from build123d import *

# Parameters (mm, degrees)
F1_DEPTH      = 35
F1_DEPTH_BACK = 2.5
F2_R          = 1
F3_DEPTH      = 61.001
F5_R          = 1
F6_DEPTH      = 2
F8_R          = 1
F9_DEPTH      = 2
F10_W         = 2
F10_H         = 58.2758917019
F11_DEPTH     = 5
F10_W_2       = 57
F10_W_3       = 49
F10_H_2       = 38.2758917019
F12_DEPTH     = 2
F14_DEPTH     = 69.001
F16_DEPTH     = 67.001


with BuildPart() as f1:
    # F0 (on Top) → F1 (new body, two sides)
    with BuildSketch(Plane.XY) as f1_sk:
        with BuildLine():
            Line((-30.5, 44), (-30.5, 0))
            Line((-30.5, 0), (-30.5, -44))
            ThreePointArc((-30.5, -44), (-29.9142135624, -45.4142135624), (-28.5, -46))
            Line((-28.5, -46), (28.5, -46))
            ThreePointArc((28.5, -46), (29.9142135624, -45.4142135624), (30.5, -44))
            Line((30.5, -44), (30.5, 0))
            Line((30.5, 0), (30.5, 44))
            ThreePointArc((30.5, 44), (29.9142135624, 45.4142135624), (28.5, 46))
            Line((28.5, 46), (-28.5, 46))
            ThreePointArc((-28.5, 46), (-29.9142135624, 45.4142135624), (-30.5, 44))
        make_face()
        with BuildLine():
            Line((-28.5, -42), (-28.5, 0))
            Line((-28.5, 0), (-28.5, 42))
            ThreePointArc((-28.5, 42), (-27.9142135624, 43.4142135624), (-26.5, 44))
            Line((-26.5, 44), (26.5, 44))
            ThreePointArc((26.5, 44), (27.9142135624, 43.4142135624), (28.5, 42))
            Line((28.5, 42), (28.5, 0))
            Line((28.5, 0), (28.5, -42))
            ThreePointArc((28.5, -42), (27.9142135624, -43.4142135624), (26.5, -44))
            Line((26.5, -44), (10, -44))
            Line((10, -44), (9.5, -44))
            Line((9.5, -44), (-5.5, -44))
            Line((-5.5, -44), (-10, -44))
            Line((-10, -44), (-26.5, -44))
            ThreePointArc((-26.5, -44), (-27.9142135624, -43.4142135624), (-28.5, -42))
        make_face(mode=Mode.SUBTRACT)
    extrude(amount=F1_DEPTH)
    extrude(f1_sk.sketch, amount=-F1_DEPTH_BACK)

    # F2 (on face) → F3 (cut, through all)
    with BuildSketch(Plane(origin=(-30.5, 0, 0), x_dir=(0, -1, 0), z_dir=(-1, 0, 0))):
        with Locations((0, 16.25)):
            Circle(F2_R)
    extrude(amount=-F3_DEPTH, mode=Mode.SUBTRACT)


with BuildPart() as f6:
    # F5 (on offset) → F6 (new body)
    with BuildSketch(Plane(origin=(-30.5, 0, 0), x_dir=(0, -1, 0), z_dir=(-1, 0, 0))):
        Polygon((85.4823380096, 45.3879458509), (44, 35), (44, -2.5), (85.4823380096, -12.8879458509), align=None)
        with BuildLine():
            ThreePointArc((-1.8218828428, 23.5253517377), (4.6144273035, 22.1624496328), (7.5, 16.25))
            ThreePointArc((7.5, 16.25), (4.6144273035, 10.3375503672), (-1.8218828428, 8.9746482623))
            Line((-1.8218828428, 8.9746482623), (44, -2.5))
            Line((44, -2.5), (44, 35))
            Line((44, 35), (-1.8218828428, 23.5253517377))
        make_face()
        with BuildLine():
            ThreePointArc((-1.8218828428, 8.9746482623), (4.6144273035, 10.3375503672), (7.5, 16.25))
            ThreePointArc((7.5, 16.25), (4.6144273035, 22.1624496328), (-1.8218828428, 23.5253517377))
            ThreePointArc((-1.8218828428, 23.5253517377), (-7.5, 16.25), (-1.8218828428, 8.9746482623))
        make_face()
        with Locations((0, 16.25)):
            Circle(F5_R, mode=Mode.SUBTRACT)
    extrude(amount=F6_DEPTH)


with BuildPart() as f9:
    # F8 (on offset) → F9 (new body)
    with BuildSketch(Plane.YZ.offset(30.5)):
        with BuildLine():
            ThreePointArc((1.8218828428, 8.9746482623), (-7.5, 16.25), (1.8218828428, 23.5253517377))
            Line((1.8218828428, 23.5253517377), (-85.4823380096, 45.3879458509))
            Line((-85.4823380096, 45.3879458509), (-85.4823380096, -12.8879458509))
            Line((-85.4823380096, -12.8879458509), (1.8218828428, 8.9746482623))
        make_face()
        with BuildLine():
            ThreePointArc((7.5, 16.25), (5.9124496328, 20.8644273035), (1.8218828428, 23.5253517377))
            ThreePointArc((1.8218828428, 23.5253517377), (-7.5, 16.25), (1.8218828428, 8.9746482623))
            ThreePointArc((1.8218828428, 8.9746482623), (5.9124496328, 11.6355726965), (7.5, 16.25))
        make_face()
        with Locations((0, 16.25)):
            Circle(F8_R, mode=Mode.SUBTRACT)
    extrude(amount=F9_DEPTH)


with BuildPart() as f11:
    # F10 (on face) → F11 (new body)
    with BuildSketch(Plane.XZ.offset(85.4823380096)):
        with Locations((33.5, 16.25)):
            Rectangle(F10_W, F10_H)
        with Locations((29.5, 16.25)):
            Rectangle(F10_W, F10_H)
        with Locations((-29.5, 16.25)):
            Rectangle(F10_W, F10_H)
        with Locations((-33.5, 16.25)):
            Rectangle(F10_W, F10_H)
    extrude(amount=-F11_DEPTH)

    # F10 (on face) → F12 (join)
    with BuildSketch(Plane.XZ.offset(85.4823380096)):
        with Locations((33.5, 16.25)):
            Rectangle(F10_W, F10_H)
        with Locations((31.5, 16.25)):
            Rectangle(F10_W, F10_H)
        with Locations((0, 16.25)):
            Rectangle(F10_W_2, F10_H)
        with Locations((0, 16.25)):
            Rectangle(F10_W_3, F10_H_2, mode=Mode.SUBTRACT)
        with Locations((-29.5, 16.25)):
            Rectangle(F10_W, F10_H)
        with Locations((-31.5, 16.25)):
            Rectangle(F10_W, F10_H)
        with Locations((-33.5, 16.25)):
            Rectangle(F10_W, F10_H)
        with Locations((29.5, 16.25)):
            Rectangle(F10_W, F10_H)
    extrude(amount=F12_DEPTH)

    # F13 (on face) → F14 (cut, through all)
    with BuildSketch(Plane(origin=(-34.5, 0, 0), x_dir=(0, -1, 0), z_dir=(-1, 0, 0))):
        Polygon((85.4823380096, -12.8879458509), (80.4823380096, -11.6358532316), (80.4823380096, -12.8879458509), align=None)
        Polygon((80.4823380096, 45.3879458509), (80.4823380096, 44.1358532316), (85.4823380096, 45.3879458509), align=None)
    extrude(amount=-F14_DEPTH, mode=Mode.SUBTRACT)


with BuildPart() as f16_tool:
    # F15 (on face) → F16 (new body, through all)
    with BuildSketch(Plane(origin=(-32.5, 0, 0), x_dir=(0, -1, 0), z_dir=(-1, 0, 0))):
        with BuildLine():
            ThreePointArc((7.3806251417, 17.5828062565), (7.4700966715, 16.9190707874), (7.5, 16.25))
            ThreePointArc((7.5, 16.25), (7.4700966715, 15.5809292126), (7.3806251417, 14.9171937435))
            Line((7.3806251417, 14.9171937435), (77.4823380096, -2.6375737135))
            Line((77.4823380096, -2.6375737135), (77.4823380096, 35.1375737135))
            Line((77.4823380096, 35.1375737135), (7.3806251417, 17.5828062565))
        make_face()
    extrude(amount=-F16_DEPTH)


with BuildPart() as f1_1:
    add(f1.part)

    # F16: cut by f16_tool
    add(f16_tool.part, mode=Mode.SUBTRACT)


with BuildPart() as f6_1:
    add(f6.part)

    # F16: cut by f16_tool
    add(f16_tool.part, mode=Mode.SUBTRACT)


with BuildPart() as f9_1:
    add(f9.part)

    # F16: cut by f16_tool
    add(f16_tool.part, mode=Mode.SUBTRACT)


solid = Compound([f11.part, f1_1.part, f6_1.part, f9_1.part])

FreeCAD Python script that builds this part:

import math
import FreeCAD as App
import Part
import Sketcher

V = App.Vector
Q = App.Units.Quantity

doc = App.newDocument("Part")
body = doc.addObject("PartDesign::Body", "Body")

sketch1 = body.newObject("Sketcher::SketchObject", "Sketch")
sketch1.AttachmentSupport = (doc.getObject("XY_Plane"), [""])
sketch1.MapMode = "FlatFace"
sketch1.addGeometry([
    Part.LineSegment(V(-30.5, 44, 0), V(-30.5, -44, 0)),
    Part.ArcOfCircle(Part.Circle(V(-28.5, -44, 0), V(0, 0, 1), 2), math.radians(180), math.radians(270)),
    Part.LineSegment(V(-28.5, -46, 0), V(28.5, -46, 0)),
    Part.ArcOfCircle(Part.Circle(V(28.5, -44, 0), V(0, 0, 1), 2), math.radians(-90), math.radians(0)),
    Part.LineSegment(V(30.5, -44, 0), V(30.5, 44, 0)),
    Part.ArcOfCircle(Part.Circle(V(28.5, 44, 0), V(0, 0, 1), 2), math.radians(0), math.radians(90)),
    Part.LineSegment(V(28.5, 46, 0), V(-28.5, 46, 0)),
    Part.ArcOfCircle(Part.Circle(V(-28.5, 44, 0), V(0, 0, 1), 2), math.radians(90), math.radians(180)),
    Part.ArcOfCircle(Part.Circle(V(-26.5, -42, 0), V(0, 0, 1), 2), math.radians(180), math.radians(270)),
    Part.LineSegment(V(-28.5, -42, 0), V(-28.5, 42, 0)),
    Part.ArcOfCircle(Part.Circle(V(-26.5, 42, 0), V(0, 0, 1), 2), math.radians(90), math.radians(180)),
    Part.LineSegment(V(-26.5, 44, 0), V(26.5, 44, 0)),
    Part.ArcOfCircle(Part.Circle(V(26.5, 42, 0), V(0, 0, 1), 2), math.radians(0), math.radians(90)),
    Part.LineSegment(V(28.5, 42, 0), V(28.5, -42, 0)),
    Part.ArcOfCircle(Part.Circle(V(26.5, -42, 0), V(0, 0, 1), 2), math.radians(-90), math.radians(0)),
    Part.LineSegment(V(26.5, -44, 0), V(-26.5, -44, 0)),
], False)
sketch1.addConstraint([
    Sketcher.Constraint("Tangent", 0, 2, 1, 1),
    Sketcher.Constraint("Tangent", 1, 2, 2, 1),
    Sketcher.Constraint("Tangent", 2, 2, 3, 1),
    Sketcher.Constraint("Tangent", 3, 2, 4, 1),
    Sketcher.Constraint("Tangent", 4, 2, 5, 1),
    Sketcher.Constraint("Tangent", 5, 2, 6, 1),
    Sketcher.Constraint("Tangent", 6, 2, 7, 1),
    Sketcher.Constraint("Tangent", 7, 2, 0, 1),
    Sketcher.Constraint("Tangent", 8, 1, 9, 1),
    Sketcher.Constraint("Tangent", 9, 2, 10, 2),
    Sketcher.Constraint("Tangent", 10, 1, 11, 1),
    Sketcher.Constraint("Tangent", 11, 2, 12, 2),
    Sketcher.Constraint("Tangent", 12, 1, 13, 1),
    Sketcher.Constraint("Tangent", 13, 2, 14, 2),
    Sketcher.Constraint("Tangent", 14, 1, 15, 1),
    Sketcher.Constraint("Tangent", 15, 2, 8, 2),
    Sketcher.Constraint("Vertical", 0),
    Sketcher.Constraint("Horizontal", 2),
    Sketcher.Constraint("Vertical", 4),
    Sketcher.Constraint("Horizontal", 6),
    Sketcher.Constraint("Vertical", 9),
    Sketcher.Constraint("Horizontal", 11),
    Sketcher.Constraint("Vertical", 13),
    Sketcher.Constraint("Horizontal", 15),
    Sketcher.Constraint("Equal", 1, 3),
    Sketcher.Constraint("Equal", 3, 5),
    Sketcher.Constraint("Equal", 5, 7),
    Sketcher.Constraint("Equal", 7, 8),
    Sketcher.Constraint("Equal", 8, 10),
    Sketcher.Constraint("Equal", 10, 12),
    Sketcher.Constraint("Equal", 12, 14),
    Sketcher.Constraint("Symmetric", 1, 3, 5, 3, -1, 1),
    Sketcher.Constraint("Symmetric", 8, 3, 12, 3, -1, 1),
    Sketcher.Constraint("Horizontal", 7, 2, 10, 1),
    Sketcher.Constraint("Vertical", 6, 2, 8, 1),
    Sketcher.Constraint("Radius", 1, Q("2 mm")),
    Sketcher.Constraint("DistanceX", 2, 1, 2, 2, Q("57 mm")),
    Sketcher.Constraint("DistanceY", 0, 2, 0, 1, Q("88 mm")),
])
pad1 = body.newObject("PartDesign::Pad", "Pad")
pad1.Profile = sketch1
pad1.Type = "TwoLengths"
pad1.Length = 35
pad1.Length2 = 2.5

sketch2 = body.newObject("Sketcher::SketchObject", "Sketch001")
sketch2.AttachmentSupport = (doc.getObject("YZ_Plane"), [""])
sketch2.MapMode = "FlatFace"
sketch2.AttachmentOffset = App.Placement(V(0, 0, -30.5), App.Rotation())
sketch2.addGeometry(Part.Circle(V(0, 16.2, 0), V(0, 0, 1), 1), False)
sketch2.addConstraint([
    Sketcher.Constraint("PointOnObject", 0, 3, -2),
    Sketcher.Constraint("Diameter", 0, Q("2 mm")),
    Sketcher.Constraint("DistanceY", -1, 1, 0, 3, Q("16.25 mm")),
])
pocket1 = body.newObject("PartDesign::Pocket", "Pocket")
pocket1.Profile = sketch2
pocket1.Type = "ThroughAll"
pocket1.Reversed = True
body2 = doc.addObject("PartDesign::Body", "Body001")

sketch3 = body2.newObject("Sketcher::SketchObject", "Sketch002")
sketch3.AttachmentSupport = (doc.getObject("YZ_Plane001"), [""])
sketch3.MapMode = "FlatFace"
sketch3.AttachmentOffset = App.Placement(V(0, 0, -30.5), App.Rotation())
sketch3.addGeometry([
    Part.LineSegment(V(-85.5, 45.4, 0), V(1.8, 23.5, 0)),
    Part.ArcOfCircle(Part.Circle(V(0, 16.2, 0), V(0, 0, 1), 7.5), math.radians(-76), math.radians(76)),
    Part.LineSegment(V(1.8, 9, 0), V(-85.5, -12.9, 0)),
    Part.LineSegment(V(-85.5, -12.9, 0), V(-85.5, 45.4, 0)),
    Part.Circle(V(0, 16.2, 0), V(0, 0, 1), 1),
], False)
sketch3.addConstraint([
    Sketcher.Constraint("Tangent", 0, 2, 1, 2),
    Sketcher.Constraint("Tangent", 1, 1, 2, 1),
    Sketcher.Constraint("Coincident", 2, 2, 3, 1),
    Sketcher.Constraint("Coincident", 3, 2, 0, 1),
    Sketcher.Constraint("Vertical", 3),
    Sketcher.Constraint("Coincident", 4, 3, 1, 3),
    Sketcher.Constraint("PointOnObject", 1, 3, -2),
    Sketcher.Constraint("Vertical", 0, 2, 1, 1),
    Sketcher.Constraint("Diameter", 4, Q("2 mm")),
    Sketcher.Constraint("Radius", 1, Q("7.5 mm")),
    Sketcher.Constraint("Distance", 0, Q("90 mm")),
    Sketcher.Constraint("DistanceY", -1, 1, 1, 3, Q("16.25 mm")),
    Sketcher.Constraint("DistanceY", 3, 1, 3, 2, Q("58.275892 mm")),
])
pad2 = body2.newObject("PartDesign::Pad", "Pad001")
pad2.Profile = sketch3
pad2.Length = 2
pad2.Reversed = True
body3 = doc.addObject("PartDesign::Body", "Body002")

sketch4 = body3.newObject("Sketcher::SketchObject", "Sketch003")
sketch4.AttachmentSupport = (doc.getObject("YZ_Plane002"), [""])
sketch4.MapMode = "FlatFace"
sketch4.AttachmentOffset = App.Placement(V(0, 0, 30.5), App.Rotation())
sketch4.addGeometry([
    Part.LineSegment(V(1.8, 23.5, 0), V(-85.5, 45.4, 0)),
    Part.LineSegment(V(-85.5, 45.4, 0), V(-85.5, -12.9, 0)),
    Part.LineSegment(V(-85.5, -12.9, 0), V(1.8, 9, 0)),
    Part.ArcOfCircle(Part.Circle(V(0, 16.2, 0), V(0, 0, 1), 7.5), math.radians(-76), math.radians(0)),
    Part.ArcOfCircle(Part.Circle(V(0, 16.2, 0), V(0, 0, 1), 7.5), math.radians(0), math.radians(76)),
    Part.Circle(V(0, 16.2, 0), V(0, 0, 1), 1),
], False)
sketch4.addConstraint([
    Sketcher.Constraint("Coincident", 0, 2, 1, 1),
    Sketcher.Constraint("Coincident", 1, 2, 2, 1),
    Sketcher.Constraint("Tangent", 2, 2, 3, 1),
    Sketcher.Constraint("Tangent", 3, 2, 4, 1),
    Sketcher.Constraint("Tangent", 4, 2, 0, 1),
    Sketcher.Constraint("Vertical", 1),
    Sketcher.Constraint("Coincident", 5, 3, 3, 3),
    Sketcher.Constraint("Equal", 3, 4),
    Sketcher.Constraint("PointOnObject", 3, 3, -2),
    Sketcher.Constraint("Horizontal", 5, 3, 3, 2),
    Sketcher.Constraint("Vertical", 2, 2, 4, 2),
    Sketcher.Constraint("Diameter", 5, Q("2 mm")),
    Sketcher.Constraint("Radius", 3, Q("7.5 mm")),
    Sketcher.Constraint("Distance", 0, Q("90 mm")),
    Sketcher.Constraint("DistanceY", -1, 1, 3, 3, Q("16.25 mm")),
    Sketcher.Constraint("DistanceY", 1, 2, 1, 1, Q("58.275892 mm")),
])
pad3 = body3.newObject("PartDesign::Pad", "Pad002")
pad3.Profile = sketch4
pad3.Length = 2
body4 = doc.addObject("PartDesign::Body", "Body003")
body4.AllowCompound = True

sketch5 = body4.newObject("Sketcher::SketchObject", "Sketch004")
sketch5.AttachmentSupport = (doc.getObject("XZ_Plane003"), [""])
sketch5.MapMode = "FlatFace"
sketch5.AttachmentOffset = App.Placement(V(0, 0, 85.482338), App.Rotation())
sketch5.addGeometry([
    Part.LineSegment(V(32.5, 45.4, 0), V(32.5, -12.9, 0)),
    Part.LineSegment(V(32.5, -12.9, 0), V(34.5, -12.9, 0)),
    Part.LineSegment(V(34.5, -12.9, 0), V(34.5, 45.4, 0)),
    Part.LineSegment(V(34.5, 45.4, 0), V(32.5, 45.4, 0)),
    Part.LineSegment(V(28.5, 45.4, 0), V(28.5, -12.9, 0)),
    Part.LineSegment(V(28.5, -12.9, 0), V(30.5, -12.9, 0)),
    Part.LineSegment(V(30.5, -12.9, 0), V(30.5, 45.4, 0)),
    Part.LineSegment(V(30.5, 45.4, 0), V(28.5, 45.4, 0)),
    Part.LineSegment(V(-30.5, 45.4, 0), V(-30.5, -12.9, 0)),
    Part.LineSegment(V(-30.5, -12.9, 0), V(-28.5, -12.9, 0)),
    Part.LineSegment(V(-28.5, -12.9, 0), V(-28.5, 45.4, 0)),
    Part.LineSegment(V(-28.5, 45.4, 0), V(-30.5, 45.4, 0)),
    Part.LineSegment(V(-34.5, 45.4, 0), V(-34.5, -12.9, 0)),
    Part.LineSegment(V(-34.5, -12.9, 0), V(-32.5, -12.9, 0)),
    Part.LineSegment(V(-32.5, -12.9, 0), V(-32.5, 45.4, 0)),
    Part.LineSegment(V(-32.5, 45.4, 0), V(-34.5, 45.4, 0)),
], False)
sketch5.addConstraint([
    Sketcher.Constraint("Coincident", 0, 2, 1, 1),
    Sketcher.Constraint("Coincident", 1, 2, 2, 1),
    Sketcher.Constraint("Coincident", 2, 2, 3, 1),
    Sketcher.Constraint("Coincident", 3, 2, 0, 1),
    Sketcher.Constraint("Coincident", 4, 2, 5, 1),
    Sketcher.Constraint("Coincident", 5, 2, 6, 1),
    Sketcher.Constraint("Coincident", 6, 2, 7, 1),
    Sketcher.Constraint("Coincident", 7, 2, 4, 1),
    Sketcher.Constraint("Coincident", 8, 2, 9, 1),
    Sketcher.Constraint("Coincident", 9, 2, 10, 1),
    Sketcher.Constraint("Coincident", 10, 2, 11, 1),
    Sketcher.Constraint("Coincident", 11, 2, 8, 1),
    Sketcher.Constraint("Coincident", 12, 2, 13, 1),
    Sketcher.Constraint("Coincident", 13, 2, 14, 1),
    Sketcher.Constraint("Coincident", 14, 2, 15, 1),
    Sketcher.Constraint("Coincident", 15, 2, 12, 1),
    Sketcher.Constraint("Vertical", 0),
    Sketcher.Constraint("Horizontal", 1),
    Sketcher.Constraint("Vertical", 2),
    Sketcher.Constraint("Horizontal", 3),
    Sketcher.Constraint("Vertical", 4),
    Sketcher.Constraint("Horizontal", 5),
    Sketcher.Constraint("Vertical", 6),
    Sketcher.Constraint("Horizontal", 7),
    Sketcher.Constraint("Vertical", 8),
    Sketcher.Constraint("Horizontal", 9),
    Sketcher.Constraint("Vertical", 10),
    Sketcher.Constraint("Horizontal", 11),
    Sketcher.Constraint("Vertical", 12),
    Sketcher.Constraint("Horizontal", 13),
    Sketcher.Constraint("Vertical", 14),
    Sketcher.Constraint("Horizontal", 15),
    Sketcher.Constraint("Symmetric", 5, 2, 8, 2, -2),
    Sketcher.Constraint("Symmetric", 7, 2, 10, 2, -2),
    Sketcher.Constraint("Symmetric", 1, 2, 12, 2, -2),
    Sketcher.Constraint("Symmetric", 3, 2, 14, 2, -2),
    Sketcher.Constraint("Horizontal", 1, 2, 4, 2),
    Sketcher.Constraint("Horizontal", 3, 2, 6, 2),
    Sketcher.Constraint("Equal", 3, 5),
    Sketcher.Constraint("DistanceX", 1, 1, 1, 2, Q("2 mm")),
    Sketcher.Constraint("DistanceX", 4, 2, 0, 2, Q("4 mm")),
    Sketcher.Constraint("DistanceX", 8, 2, 4, 2, Q("59 mm")),
    Sketcher.Constraint("DistanceY", 0, 2, 0, 1, Q("58.275892 mm")),
    Sketcher.Constraint("DistanceY", 0, 2, -1, 1, Q("12.887946 mm")),
])
pad4 = body4.newObject("PartDesign::Pad", "Pad003")
pad4.Profile = sketch5
pad4.Length = 5
pad4.Reversed = True

sketch6 = body4.newObject("Sketcher::SketchObject", "Sketch005")
sketch6.AttachmentSupport = (doc.getObject("XZ_Plane003"), [""])
sketch6.MapMode = "FlatFace"
sketch6.AttachmentOffset = App.Placement(V(0, 0, 85.482338), App.Rotation())
sketch6.addGeometry([
    Part.LineSegment(V(34, -13, 0), V(34, 45, 0)),
    Part.LineSegment(V(34, 45, 0), V(-34, 45, 0)),
    Part.LineSegment(V(-34, 45, 0), V(-34, -13, 0)),
    Part.LineSegment(V(-34, -13, 0), V(34, -13, 0)),
    Part.LineSegment(V(24, 35, 0), V(24, -3, 0)),
    Part.LineSegment(V(24, -3, 0), V(-24, -3, 0)),
    Part.LineSegment(V(-24, -3, 0), V(-24, 35, 0)),
    Part.LineSegment(V(-24, 35, 0), V(24, 35, 0)),
], False)
sketch6.addConstraint([
    Sketcher.Constraint("Coincident", 0, 2, 1, 1),
    Sketcher.Constraint("Coincident", 1, 2, 2, 1),
    Sketcher.Constraint("Coincident", 2, 2, 3, 1),
    Sketcher.Constraint("Coincident", 3, 2, 0, 1),
    Sketcher.Constraint("Coincident", 4, 2, 5, 1),
    Sketcher.Constraint("Coincident", 5, 2, 6, 1),
    Sketcher.Constraint("Coincident", 6, 2, 7, 1),
    Sketcher.Constraint("Coincident", 7, 2, 4, 1),
    Sketcher.Constraint("Vertical", 0),
    Sketcher.Constraint("Horizontal", 1),
    Sketcher.Constraint("Vertical", 2),
    Sketcher.Constraint("Horizontal", 3),
    Sketcher.Constraint("Vertical", 4),
    Sketcher.Constraint("Horizontal", 5),
    Sketcher.Constraint("Vertical", 6),
    Sketcher.Constraint("Horizontal", 7),
    Sketcher.Constraint("DistanceX", 1, 2, 1, 1, Q("69 mm")),
    Sketcher.Constraint("DistanceX", 5, 2, 5, 1, Q("49 mm")),
    Sketcher.Constraint("DistanceX", 4, 2, 3, 2, Q("10 mm")),
    Sketcher.Constraint("DistanceY", 3, 2, 4, 2, Q("10 mm")),
    Sketcher.Constraint("DistanceY", 6, 2, 1, 2, Q("10 mm")),
    Sketcher.Constraint("DistanceX", -1, 1, 0, 2, Q("34.5 mm")),
    Sketcher.Constraint("DistanceY", 0, 1, 0, 2, Q("58.275892 mm")),
    Sketcher.Constraint("DistanceY", -1, 1, 0, 2, Q("45.387946 mm")),
])
pad5 = body4.newObject("PartDesign::Pad", "Pad004")
pad5.Profile = sketch6
pad5.Length = 2

sketch7 = body4.newObject("Sketcher::SketchObject", "Sketch006")
sketch7.AttachmentSupport = (doc.getObject("YZ_Plane003"), [""])
sketch7.MapMode = "FlatFace"
sketch7.AttachmentOffset = App.Placement(V(0, 0, -34.5), App.Rotation())
sketch7.addGeometry([
    Part.LineSegment(V(-85.5, -12.9, 0), V(-80.5, -11.6, 0)),
    Part.LineSegment(V(-80.5, -11.6, 0), V(-80.5, -12.9, 0)),
    Part.LineSegment(V(-80.5, -12.9, 0), V(-85.5, -12.9, 0)),
    Part.LineSegment(V(-80.5, 45.4, 0), V(-80.5, 44.1, 0)),
    Part.LineSegment(V(-80.5, 44.1, 0), V(-85.5, 45.4, 0)),
    Part.LineSegment(V(-85.5, 45.4, 0), V(-80.5, 45.4, 0)),
], False)
sketch7.addConstraint([
    Sketcher.Constraint("Coincident", 0, 2, 1, 1),
    Sketcher.Constraint("Coincident", 1, 2, 2, 1),
    Sketcher.Constraint("Coincident", 2, 2, 0, 1),
    Sketcher.Constraint("Coincident", 3, 2, 4, 1),
    Sketcher.Constraint("Coincident", 4, 2, 5, 1),
    Sketcher.Constraint("Coincident", 5, 2, 3, 1),
    Sketcher.Constraint("Vertical", 1),
    Sketcher.Constraint("Horizontal", 2),
    Sketcher.Constraint("Vertical", 3),
    Sketcher.Constraint("Horizontal", 5),
    Sketcher.Constraint("Vertical", 1, 2, 3, 2),
    Sketcher.Constraint("Vertical", 2, 2, 4, 2),
    Sketcher.Constraint("Equal", 1, 3),
    Sketcher.Constraint("DistanceX", 2, 2, 2, 1, Q("5 mm")),
    Sketcher.Constraint("DistanceY", 1, 2, 3, 2, Q("57.023799 mm")),
    Sketcher.Constraint("Distance", 0, Q("5.15439 mm")),
    Sketcher.Constraint("DistanceX", 0, 2, -1, 1, Q("80.482338 mm")),
    Sketcher.Constraint("DistanceY", 0, 2, -1, 1, Q("11.635853 mm")),
])
pocket2 = body4.newObject("PartDesign::Pocket", "Pocket001")
pocket2.Profile = sketch7
pocket2.Type = "ThroughAll"
pocket2.Reversed = True
body5 = doc.addObject("PartDesign::Body", "Body004")

sketch8 = body5.newObject("Sketcher::SketchObject", "Sketch007")
sketch8.AttachmentSupport = (doc.getObject("YZ_Plane004"), [""])
sketch8.MapMode = "FlatFace"
sketch8.AttachmentOffset = App.Placement(V(0, 0, -32.5), App.Rotation())
sketch8.addGeometry([
    Part.ArcOfCircle(Part.Circle(V(0, 16.2, 0), V(0, 0, 1), 7.5), math.radians(169.76), math.radians(180)),
    Part.ArcOfCircle(Part.Circle(V(0, 16.2, 0), V(0, 0, 1), 7.5), math.radians(180), math.radians(190.24)),
    Part.LineSegment(V(-7.4, 14.9, 0), V(-77.5, -2.6, 0)),
    Part.LineSegment(V(-77.5, -2.6, 0), V(-77.5, 35.1, 0)),
    Part.LineSegment(V(-77.5, 35.1, 0), V(-7.4, 17.6, 0)),
], False)
sketch8.addConstraint([
    Sketcher.Constraint("Tangent", 0, 2, 1, 1),
    Sketcher.Constraint("Coincident", 1, 2, 2, 1),
    Sketcher.Constraint("Coincident", 2, 2, 3, 1),
    Sketcher.Constraint("Coincident", 3, 2, 4, 1),
    Sketcher.Constraint("Coincident", 4, 2, 0, 1),
    Sketcher.Constraint("Vertical", 3),
    Sketcher.Constraint("Equal", 0, 1),
    Sketcher.Constraint("PointOnObject", 0, 3, -2),
    Sketcher.Constraint("Horizontal", 1, 3, 0, 2),
    Sketcher.Constraint("Vertical", 1, 2, 4, 2),
    Sketcher.Constraint("Equal", 2, 4),
    Sketcher.Constraint("Radius", 0, Q("7.5 mm")),
    Sketcher.Constraint("DistanceY", -1, 1, 0, 3, Q("16.25 mm")),
    Sketcher.Constraint("DistanceY", 3, 1, 3, 2, Q("37.775147 mm")),
    Sketcher.Constraint("DistanceX", 2, 2, -1, 1, Q("77.482338 mm")),
    Sketcher.Constraint("DistanceY", 1, 2, 3, 2, Q("20.22038 mm")),
])
pad6 = body5.newObject("PartDesign::Pad", "Pad005")
pad6.Profile = sketch8
pad6.Length = 67.001
doc.recompute()

body6 = doc.addObject("PartDesign::Body", "Body005")
body6.BaseFeature = body5
boolean = body.newObject("PartDesign::Boolean", "Boolean")
boolean.Type = "Cut"
boolean.addObjects([body6])
doc.recompute()

body7 = doc.addObject("PartDesign::Body", "Body006")
body7.BaseFeature = body5
boolean2 = body2.newObject("PartDesign::Boolean", "Boolean001")
boolean2.Type = "Cut"
boolean2.addObjects([body7])
doc.recompute()

boolean3 = body3.newObject("PartDesign::Boolean", "Boolean002")
boolean3.Type = "Cut"
boolean3.addObjects([body5])

doc.recompute()
